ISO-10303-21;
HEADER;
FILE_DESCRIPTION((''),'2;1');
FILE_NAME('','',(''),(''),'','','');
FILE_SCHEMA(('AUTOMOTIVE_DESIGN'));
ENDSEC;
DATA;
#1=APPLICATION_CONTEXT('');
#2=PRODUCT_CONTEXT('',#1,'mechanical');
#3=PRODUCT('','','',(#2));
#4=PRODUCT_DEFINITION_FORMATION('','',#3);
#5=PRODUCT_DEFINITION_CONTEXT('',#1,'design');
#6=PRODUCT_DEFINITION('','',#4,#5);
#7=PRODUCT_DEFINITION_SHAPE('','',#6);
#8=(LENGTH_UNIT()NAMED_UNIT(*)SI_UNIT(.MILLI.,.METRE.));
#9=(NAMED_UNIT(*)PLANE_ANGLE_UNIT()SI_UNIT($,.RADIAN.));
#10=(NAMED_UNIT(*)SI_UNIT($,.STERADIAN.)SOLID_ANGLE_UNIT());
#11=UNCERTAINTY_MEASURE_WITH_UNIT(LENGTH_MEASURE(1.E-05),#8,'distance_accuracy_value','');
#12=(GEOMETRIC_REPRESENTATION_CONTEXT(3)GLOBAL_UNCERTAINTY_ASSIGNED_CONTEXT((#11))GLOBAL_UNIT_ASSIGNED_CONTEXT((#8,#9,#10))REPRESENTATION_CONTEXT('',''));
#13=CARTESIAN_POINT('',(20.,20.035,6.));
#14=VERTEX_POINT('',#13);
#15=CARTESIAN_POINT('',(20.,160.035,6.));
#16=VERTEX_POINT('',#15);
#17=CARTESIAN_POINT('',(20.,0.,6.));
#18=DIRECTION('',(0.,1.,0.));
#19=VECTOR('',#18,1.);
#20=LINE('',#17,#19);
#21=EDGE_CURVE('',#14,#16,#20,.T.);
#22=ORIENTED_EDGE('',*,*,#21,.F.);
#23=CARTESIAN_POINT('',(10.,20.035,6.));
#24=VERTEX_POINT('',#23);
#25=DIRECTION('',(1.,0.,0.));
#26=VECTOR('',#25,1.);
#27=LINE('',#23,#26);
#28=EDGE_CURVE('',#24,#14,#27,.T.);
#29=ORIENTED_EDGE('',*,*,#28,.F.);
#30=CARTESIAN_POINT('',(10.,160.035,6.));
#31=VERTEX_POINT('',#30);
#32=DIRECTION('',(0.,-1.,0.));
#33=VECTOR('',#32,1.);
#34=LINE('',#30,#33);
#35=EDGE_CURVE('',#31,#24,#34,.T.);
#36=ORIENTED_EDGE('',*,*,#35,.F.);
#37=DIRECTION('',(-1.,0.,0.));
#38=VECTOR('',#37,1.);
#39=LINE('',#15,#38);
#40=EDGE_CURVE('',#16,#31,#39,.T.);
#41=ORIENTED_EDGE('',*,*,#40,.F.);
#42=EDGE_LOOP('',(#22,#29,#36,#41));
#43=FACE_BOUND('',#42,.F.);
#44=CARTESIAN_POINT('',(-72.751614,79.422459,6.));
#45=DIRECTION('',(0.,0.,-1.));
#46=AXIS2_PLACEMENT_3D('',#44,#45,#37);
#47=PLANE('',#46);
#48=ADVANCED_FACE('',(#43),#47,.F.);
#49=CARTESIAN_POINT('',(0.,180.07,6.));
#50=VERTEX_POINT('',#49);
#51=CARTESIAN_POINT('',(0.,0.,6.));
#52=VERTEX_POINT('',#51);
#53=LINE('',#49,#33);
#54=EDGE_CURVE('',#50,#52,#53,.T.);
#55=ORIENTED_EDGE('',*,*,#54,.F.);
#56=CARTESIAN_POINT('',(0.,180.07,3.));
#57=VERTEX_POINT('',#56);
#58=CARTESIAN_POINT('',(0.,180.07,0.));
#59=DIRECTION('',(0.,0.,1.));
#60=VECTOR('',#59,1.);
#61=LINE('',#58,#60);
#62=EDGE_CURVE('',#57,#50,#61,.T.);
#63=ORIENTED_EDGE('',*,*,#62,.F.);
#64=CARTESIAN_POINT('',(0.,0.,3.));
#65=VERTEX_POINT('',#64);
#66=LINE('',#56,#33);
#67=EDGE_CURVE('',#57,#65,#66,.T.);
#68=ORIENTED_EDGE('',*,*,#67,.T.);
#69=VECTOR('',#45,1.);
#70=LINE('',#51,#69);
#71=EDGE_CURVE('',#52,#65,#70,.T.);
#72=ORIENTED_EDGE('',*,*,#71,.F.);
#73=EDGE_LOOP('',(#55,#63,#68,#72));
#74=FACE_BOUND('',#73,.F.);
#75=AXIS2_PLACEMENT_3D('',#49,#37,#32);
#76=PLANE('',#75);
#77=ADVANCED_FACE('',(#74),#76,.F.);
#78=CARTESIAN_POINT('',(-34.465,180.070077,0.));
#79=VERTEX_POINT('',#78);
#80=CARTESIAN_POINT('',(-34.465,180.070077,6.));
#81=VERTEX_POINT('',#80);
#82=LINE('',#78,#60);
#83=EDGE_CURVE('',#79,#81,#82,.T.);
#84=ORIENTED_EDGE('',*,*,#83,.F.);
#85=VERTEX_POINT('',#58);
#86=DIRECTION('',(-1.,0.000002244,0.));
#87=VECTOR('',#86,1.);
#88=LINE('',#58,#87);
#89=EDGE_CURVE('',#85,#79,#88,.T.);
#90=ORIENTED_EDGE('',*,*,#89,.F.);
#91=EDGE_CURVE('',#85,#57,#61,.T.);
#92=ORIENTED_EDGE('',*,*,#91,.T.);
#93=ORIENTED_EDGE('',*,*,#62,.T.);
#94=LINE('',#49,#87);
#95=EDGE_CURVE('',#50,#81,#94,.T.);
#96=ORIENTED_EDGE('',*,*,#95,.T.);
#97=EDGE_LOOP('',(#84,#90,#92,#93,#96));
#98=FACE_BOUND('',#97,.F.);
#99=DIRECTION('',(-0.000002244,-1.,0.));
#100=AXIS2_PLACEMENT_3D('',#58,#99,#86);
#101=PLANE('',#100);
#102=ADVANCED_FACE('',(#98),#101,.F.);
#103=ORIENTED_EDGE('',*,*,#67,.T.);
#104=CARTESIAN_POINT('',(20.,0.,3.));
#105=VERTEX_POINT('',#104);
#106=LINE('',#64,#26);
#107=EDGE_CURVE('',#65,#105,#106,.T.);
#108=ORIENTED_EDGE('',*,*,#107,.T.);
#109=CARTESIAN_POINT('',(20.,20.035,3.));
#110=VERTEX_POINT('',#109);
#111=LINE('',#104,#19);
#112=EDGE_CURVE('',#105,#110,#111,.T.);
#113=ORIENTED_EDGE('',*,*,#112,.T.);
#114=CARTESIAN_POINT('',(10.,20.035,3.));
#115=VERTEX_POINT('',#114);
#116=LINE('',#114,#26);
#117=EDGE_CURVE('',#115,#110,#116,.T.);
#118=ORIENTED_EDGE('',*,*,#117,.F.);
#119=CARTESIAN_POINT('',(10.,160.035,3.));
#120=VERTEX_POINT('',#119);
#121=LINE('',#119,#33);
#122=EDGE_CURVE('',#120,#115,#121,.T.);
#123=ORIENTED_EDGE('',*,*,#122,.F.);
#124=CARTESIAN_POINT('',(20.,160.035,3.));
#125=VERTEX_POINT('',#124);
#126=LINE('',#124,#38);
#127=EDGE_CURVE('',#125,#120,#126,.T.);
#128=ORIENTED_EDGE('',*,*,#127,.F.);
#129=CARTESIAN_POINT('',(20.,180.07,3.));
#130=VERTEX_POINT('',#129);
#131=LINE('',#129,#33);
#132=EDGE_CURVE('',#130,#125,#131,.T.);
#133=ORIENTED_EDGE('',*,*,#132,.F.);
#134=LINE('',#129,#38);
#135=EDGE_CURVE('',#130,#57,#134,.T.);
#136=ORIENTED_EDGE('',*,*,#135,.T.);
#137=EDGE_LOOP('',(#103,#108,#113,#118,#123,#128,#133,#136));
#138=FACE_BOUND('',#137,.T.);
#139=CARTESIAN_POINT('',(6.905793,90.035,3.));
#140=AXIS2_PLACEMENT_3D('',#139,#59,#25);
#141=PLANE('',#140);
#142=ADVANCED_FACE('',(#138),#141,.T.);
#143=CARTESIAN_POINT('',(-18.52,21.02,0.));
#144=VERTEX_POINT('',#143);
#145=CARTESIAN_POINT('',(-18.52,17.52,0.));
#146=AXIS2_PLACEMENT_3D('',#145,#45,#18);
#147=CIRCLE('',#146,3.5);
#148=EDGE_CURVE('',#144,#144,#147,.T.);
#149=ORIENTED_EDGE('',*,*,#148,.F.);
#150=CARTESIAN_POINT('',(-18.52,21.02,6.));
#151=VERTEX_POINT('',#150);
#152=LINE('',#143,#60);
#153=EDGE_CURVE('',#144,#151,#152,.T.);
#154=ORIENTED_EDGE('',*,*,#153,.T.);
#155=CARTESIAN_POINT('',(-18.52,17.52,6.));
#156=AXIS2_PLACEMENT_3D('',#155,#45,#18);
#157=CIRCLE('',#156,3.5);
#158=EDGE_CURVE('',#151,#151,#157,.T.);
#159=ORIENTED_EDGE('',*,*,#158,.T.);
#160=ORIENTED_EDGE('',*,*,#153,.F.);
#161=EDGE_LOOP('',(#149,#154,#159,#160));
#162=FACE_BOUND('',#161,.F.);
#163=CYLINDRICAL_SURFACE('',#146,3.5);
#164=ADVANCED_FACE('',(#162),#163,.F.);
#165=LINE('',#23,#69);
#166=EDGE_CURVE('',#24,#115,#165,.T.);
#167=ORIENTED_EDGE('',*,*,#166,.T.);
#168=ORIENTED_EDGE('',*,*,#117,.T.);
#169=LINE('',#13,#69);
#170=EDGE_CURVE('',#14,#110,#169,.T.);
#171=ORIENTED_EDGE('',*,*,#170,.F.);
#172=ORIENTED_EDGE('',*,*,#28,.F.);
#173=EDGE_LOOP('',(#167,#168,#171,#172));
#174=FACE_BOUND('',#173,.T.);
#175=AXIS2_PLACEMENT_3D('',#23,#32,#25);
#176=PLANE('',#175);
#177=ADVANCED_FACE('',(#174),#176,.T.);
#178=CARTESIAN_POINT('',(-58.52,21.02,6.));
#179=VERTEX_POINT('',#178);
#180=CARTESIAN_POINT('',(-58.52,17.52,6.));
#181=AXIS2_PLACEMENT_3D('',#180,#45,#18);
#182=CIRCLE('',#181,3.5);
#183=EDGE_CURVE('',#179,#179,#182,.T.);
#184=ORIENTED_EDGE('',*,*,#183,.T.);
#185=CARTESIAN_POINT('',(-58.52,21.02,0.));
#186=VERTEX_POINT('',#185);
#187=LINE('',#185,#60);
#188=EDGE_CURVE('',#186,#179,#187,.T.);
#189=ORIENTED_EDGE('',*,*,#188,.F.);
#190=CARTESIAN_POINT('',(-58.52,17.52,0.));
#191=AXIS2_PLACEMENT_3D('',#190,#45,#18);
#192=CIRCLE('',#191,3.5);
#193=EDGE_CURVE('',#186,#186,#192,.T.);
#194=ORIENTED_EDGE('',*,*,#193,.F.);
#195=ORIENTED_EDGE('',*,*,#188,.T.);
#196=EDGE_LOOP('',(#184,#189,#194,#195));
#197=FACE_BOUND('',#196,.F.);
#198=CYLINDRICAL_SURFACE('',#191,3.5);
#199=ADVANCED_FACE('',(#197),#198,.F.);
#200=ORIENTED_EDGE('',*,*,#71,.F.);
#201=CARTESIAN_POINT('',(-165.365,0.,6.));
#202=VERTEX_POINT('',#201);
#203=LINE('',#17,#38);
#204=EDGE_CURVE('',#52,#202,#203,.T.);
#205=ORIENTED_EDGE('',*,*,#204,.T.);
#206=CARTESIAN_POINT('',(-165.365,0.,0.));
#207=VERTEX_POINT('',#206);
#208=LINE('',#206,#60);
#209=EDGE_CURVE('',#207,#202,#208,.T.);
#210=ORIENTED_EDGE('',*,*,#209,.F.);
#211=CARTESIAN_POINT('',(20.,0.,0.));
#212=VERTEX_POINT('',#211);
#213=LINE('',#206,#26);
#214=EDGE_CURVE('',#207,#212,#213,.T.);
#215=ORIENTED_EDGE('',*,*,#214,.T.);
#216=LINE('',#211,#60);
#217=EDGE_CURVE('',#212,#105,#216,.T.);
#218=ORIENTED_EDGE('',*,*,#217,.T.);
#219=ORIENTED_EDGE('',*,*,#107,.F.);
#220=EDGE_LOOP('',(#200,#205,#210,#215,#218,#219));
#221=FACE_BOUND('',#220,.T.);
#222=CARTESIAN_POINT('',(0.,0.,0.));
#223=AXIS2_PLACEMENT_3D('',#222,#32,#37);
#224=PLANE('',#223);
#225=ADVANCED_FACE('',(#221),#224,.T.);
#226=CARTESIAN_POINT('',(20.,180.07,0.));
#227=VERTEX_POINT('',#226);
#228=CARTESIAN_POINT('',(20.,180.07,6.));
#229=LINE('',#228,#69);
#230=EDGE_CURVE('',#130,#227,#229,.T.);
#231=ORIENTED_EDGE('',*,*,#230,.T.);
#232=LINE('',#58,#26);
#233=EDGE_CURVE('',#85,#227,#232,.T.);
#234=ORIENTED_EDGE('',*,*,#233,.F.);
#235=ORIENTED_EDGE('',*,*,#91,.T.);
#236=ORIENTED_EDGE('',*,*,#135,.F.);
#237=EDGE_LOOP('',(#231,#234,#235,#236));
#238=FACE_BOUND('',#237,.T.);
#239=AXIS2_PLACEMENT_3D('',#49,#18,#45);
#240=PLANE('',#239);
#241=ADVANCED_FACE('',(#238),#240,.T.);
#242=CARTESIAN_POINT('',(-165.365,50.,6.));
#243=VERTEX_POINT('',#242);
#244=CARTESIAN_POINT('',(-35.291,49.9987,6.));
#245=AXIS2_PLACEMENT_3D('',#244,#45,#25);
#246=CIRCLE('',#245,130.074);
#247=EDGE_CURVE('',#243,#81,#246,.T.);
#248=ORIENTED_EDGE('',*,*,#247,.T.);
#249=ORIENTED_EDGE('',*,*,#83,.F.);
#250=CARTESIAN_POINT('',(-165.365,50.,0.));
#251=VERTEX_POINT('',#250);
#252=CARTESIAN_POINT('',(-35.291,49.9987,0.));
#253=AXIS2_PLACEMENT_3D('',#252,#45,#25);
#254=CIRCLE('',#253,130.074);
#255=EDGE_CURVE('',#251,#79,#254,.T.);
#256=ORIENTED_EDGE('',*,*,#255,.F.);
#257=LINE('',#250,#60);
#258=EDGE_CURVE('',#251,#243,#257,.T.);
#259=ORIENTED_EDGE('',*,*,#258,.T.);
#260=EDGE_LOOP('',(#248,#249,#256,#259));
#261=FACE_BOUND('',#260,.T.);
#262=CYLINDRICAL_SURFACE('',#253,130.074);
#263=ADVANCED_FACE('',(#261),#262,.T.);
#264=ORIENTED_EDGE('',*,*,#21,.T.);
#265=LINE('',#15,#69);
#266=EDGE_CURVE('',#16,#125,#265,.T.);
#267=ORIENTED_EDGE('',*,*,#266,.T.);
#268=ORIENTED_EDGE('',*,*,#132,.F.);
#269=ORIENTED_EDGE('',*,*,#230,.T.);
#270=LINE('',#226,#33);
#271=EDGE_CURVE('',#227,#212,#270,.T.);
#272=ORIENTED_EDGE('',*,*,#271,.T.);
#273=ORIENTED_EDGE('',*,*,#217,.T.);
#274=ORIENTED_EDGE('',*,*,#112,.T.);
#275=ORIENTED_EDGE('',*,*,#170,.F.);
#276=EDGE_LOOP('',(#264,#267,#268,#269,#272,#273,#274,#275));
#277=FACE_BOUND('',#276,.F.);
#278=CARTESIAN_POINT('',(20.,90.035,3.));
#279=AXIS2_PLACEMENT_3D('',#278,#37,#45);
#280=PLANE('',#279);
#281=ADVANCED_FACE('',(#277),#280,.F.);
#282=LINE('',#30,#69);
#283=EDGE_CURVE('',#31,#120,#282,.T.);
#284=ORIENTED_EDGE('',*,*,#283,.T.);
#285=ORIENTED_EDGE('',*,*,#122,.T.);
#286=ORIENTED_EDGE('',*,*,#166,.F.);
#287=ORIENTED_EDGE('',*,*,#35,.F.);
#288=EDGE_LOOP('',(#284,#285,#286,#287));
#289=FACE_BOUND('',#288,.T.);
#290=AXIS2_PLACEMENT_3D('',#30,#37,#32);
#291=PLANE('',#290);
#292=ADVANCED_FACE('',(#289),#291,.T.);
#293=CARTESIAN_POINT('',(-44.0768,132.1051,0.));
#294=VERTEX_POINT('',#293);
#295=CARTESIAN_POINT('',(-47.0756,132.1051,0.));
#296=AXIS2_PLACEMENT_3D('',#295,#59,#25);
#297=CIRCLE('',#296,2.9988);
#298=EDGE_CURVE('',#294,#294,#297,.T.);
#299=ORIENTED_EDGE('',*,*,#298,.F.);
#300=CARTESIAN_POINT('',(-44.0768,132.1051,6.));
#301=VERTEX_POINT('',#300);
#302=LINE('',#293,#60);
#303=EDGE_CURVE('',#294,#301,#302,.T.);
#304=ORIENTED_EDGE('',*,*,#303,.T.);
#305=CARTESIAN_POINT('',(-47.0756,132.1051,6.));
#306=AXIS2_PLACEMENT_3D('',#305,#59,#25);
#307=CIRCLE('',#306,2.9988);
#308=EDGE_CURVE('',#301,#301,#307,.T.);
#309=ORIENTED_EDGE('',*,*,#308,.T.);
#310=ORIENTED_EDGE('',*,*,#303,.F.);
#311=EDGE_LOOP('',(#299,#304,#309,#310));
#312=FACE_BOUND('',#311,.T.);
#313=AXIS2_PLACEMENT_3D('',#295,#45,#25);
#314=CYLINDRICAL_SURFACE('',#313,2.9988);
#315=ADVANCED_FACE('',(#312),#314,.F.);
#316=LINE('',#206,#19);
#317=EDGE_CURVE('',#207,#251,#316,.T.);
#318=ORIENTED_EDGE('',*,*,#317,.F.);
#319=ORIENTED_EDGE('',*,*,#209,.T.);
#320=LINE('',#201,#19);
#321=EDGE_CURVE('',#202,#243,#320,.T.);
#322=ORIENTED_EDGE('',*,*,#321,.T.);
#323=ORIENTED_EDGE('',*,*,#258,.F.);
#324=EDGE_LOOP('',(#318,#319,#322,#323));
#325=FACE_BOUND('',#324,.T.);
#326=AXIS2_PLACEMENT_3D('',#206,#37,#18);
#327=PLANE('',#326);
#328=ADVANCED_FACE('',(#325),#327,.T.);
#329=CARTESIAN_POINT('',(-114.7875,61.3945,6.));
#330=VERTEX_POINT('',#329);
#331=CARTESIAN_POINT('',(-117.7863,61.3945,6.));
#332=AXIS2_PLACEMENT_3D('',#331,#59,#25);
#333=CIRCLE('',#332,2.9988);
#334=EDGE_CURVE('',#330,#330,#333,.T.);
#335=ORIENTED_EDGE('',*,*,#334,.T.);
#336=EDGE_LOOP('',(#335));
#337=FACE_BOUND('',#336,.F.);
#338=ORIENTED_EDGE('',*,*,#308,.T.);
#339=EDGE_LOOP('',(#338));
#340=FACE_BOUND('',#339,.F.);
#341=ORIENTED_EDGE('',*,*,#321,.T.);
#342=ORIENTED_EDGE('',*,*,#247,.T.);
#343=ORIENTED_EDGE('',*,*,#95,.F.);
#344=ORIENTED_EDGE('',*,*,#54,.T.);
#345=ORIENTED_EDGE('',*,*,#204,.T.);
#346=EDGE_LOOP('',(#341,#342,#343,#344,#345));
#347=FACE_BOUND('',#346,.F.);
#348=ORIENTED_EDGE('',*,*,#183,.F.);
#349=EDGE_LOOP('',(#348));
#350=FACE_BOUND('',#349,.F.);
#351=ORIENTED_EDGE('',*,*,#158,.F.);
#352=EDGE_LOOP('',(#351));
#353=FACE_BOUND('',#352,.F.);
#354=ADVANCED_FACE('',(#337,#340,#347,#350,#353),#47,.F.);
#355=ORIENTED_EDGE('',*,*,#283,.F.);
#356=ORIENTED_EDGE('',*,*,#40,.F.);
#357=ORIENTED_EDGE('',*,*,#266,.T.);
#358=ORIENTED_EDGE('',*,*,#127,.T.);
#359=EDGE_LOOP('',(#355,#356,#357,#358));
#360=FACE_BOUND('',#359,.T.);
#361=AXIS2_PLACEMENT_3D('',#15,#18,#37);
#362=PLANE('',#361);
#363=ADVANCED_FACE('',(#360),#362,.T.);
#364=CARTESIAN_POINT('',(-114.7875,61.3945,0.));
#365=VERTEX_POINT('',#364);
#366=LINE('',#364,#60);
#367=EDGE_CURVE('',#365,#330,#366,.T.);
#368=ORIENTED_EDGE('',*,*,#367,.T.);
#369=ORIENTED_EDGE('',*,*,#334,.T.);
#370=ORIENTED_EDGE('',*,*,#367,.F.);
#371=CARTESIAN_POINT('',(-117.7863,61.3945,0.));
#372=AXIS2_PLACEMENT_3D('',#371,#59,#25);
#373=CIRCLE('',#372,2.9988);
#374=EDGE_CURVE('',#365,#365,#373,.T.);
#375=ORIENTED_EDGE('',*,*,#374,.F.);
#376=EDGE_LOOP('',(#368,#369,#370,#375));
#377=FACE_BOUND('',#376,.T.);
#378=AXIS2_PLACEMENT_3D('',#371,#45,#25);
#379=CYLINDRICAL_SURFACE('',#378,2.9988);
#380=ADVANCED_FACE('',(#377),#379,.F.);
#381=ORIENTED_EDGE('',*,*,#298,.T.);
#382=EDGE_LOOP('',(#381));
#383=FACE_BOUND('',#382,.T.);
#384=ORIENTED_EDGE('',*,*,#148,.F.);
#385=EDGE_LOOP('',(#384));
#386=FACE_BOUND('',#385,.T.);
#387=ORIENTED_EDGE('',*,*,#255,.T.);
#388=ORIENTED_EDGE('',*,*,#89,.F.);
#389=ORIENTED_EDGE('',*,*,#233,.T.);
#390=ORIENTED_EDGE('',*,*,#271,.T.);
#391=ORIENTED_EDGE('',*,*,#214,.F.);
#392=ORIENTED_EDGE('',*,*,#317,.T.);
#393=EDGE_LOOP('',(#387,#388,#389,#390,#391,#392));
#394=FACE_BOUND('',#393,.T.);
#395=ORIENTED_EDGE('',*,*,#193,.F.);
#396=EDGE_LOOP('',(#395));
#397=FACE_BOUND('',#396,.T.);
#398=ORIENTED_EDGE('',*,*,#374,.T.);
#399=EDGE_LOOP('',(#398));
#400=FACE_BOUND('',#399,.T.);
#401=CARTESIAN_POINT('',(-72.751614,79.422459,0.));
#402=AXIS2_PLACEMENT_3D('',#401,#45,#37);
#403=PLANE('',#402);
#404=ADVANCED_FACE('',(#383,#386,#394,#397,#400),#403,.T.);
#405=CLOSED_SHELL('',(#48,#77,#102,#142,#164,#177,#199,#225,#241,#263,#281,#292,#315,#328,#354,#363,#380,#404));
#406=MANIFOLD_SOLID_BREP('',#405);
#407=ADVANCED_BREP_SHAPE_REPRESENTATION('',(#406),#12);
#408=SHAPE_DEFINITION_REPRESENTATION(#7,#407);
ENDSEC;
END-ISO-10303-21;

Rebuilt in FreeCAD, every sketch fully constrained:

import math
import FreeCAD as App
import Part
import Sketcher
Q = App.Units.Quantity

doc = App.newDocument("Part")
body = doc.addObject("PartDesign::Body", "Body")

# Sketch on XY plane
sketch1 = body.newObject("Sketcher::SketchObject", "Sketch")
sketch1.AttachmentSupport = (doc.getObject("XY_Plane"), [""])
sketch1.MapMode = "FlatFace"
sketch1.addGeometry([
    Part.LineSegment(App.Vector(-165.365, 0, 0), App.Vector(0, 0, 0)),  # 0
    Part.LineSegment(App.Vector(0, 0, 0), App.Vector(0, 180.07, 0)),  # 1
    Part.LineSegment(App.Vector(0, 180.07, 0), App.Vector(-34.465, 180.07, 0)),  # 2
    Part.ArcOfCircle(Part.Circle(App.Vector(-35.291, 49.9987, 0), App.Vector(0, 0, 1), 130.074), math.radians(89.636156), math.radians(179.999427)),  # 3
    Part.LineSegment(App.Vector(-165.365, 50, 0), App.Vector(-165.365, 0, 0)),  # 4
    Part.Circle(App.Vector(-117.7863, 61.3945, 0), App.Vector(0, 0, 1), 2.9988),  # 5
    Part.Circle(App.Vector(-47.0756, 132.1051, 0), App.Vector(0, 0, 1), 2.9988),  # 6
], False)
sketch1.addConstraint([
    Sketcher.Constraint("Coincident", 0, 2, 1, 1),
    Sketcher.Constraint("Coincident", 1, 2, 2, 1),
    Sketcher.Constraint("Coincident", 2, 2, 3, 1),
    Sketcher.Constraint("Coincident", 3, 2, 4, 1),
    Sketcher.Constraint("Coincident", 4, 2, 0, 1),
    Sketcher.Constraint("Horizontal", 0),
    Sketcher.Constraint("Vertical", 1),
    Sketcher.Constraint("Horizontal", 2),
    Sketcher.Constraint("Vertical", 4),
    Sketcher.Constraint("Coincident", 0, 2, -1, 1),
    Sketcher.Constraint("DistanceX", 0, 1, 0, 2, Q("165.365 mm")),
    Sketcher.Constraint("DistanceY", 4, 2, 4, 1, Q("50 mm")),
    Sketcher.Constraint("Radius", 3, Q("130.074 mm")),
    Sketcher.Constraint("Diameter", 5, Q("5.9976 mm")),
    Sketcher.Constraint("Diameter", 6, Q("5.9976 mm")),
    Sketcher.Constraint("DistanceY", 1, 1, 1, 2, Q("180.07 mm")),
    Sketcher.Constraint("DistanceX", 3, 2, 2, 2, Q("130.9 mm")),
    Sketcher.Constraint("DistanceY", -1, 1, 6, 3, Q("132.105 mm")),
    Sketcher.Constraint("DistanceX", 5, 3, -1, 1, Q("117.7863 mm")),
    Sketcher.Constraint("DistanceY", -1, 1, 5, 3, Q("61.3945 mm")),
    Sketcher.Constraint("DistanceX", 6, 3, -1, 1, Q("47.0756 mm")),
])
pad1 = body.newObject("PartDesign::Pad", "Pad")
pad1.Profile = sketch1
pad1.Length = 6

# Sketch on YZ plane
sketch2 = body.newObject("Sketcher::SketchObject", "Sketch001")
sketch2.AttachmentSupport = (doc.getObject("YZ_Plane"), [""])
sketch2.MapMode = "FlatFace"
sketch2.addGeometry([
    Part.LineSegment(App.Vector(180, 6, 0), App.Vector(0, 6, 0)),
    Part.LineSegment(App.Vector(0, 6, 0), App.Vector(0, 0, 0)),
    Part.LineSegment(App.Vector(0, 0, 0), App.Vector(180, 0, 0)),
    Part.LineSegment(App.Vector(180, 0, 0), App.Vector(180, 6, 0)),
], False)
sketch2.addConstraint([
    Sketcher.Constraint("Coincident", 0, 2, 1, 1),
    Sketcher.Constraint("Coincident", 1, 2, 2, 1),
    Sketcher.Constraint("Coincident", 2, 2, 3, 1),
    Sketcher.Constraint("Coincident", 3, 2, 0, 1),
    Sketcher.Constraint("Horizontal", 0),
    Sketcher.Constraint("Vertical", 1),
    Sketcher.Constraint("Horizontal", 2),
    Sketcher.Constraint("Vertical", 3),
    Sketcher.Constraint("Coincident", 1, 2, -1, 1),
    Sketcher.Constraint("DistanceY", 1, 2, 1, 1, Q("6 mm")),
    Sketcher.Constraint("DistanceX", 0, 2, 0, 1, Q("180.07 mm")),
])
pad2 = body.newObject("PartDesign::Pad", "Pad001")
pad2.Profile = sketch2
pad2.Length = 20

# Sketch on XY plane
sketch3 = body.newObject("Sketcher::SketchObject", "Sketch002")
sketch3.AttachmentSupport = (doc.getObject("XY_Plane"), [""])
sketch3.MapMode = "FlatFace"
sketch3.AttachmentOffset = App.Placement(App.Vector(0, 0, 6), App.Rotation())
sketch3.addGeometry([
    Part.LineSegment(App.Vector(20, 160, 0), App.Vector(20, 180, 0)),  # 0
    Part.LineSegment(App.Vector(20, 180, 0), App.Vector(0, 180, 0)),  # 1
    Part.LineSegment(App.Vector(0, 180, 0), App.Vector(0, 0, 0)),  # 2
    Part.LineSegment(App.Vector(0, 0, 0), App.Vector(20, 0, 0)),  # 3
    Part.LineSegment(App.Vector(20, 0, 0), App.Vector(20, 20, 0)),  # 4
    Part.LineSegment(App.Vector(20, 20, 0), App.Vector(10, 20, 0)),  # 5
    Part.LineSegment(App.Vector(10, 20, 0), App.Vector(10, 160, 0)),  # 6
    Part.LineSegment(App.Vector(10, 160, 0), App.Vector(20, 160, 0)),  # 7
], False)
sketch3.addConstraint([
    Sketcher.Constraint("Coincident", 0, 2, 1, 1),
    Sketcher.Constraint("Coincident", 1, 2, 2, 1),
    Sketcher.Constraint("Coincident", 2, 2, 3, 1),
    Sketcher.Constraint("Coincident", 3, 2, 4, 1),
    Sketcher.Constraint("Coincident", 4, 2, 5, 1),
    Sketcher.Constraint("Coincident", 5, 2, 6, 1),
    Sketcher.Constraint("Coincident", 6, 2, 7, 1),
    Sketcher.Constraint("Coincident", 7, 2, 0, 1),
    Sketcher.Constraint("Vertical", 0),
    Sketcher.Constraint("Horizontal", 1),
    Sketcher.Constraint("Vertical", 2),
    Sketcher.Constraint("Horizontal", 3),
    Sketcher.Constraint("Vertical", 4),
    Sketcher.Constraint("Horizontal", 5),
    Sketcher.Constraint("Vertical", 6),
    Sketcher.Constraint("Horizontal", 7),
    Sketcher.Constraint("Coincident", 2, 2, -1, 1),
    Sketcher.Constraint("Vertical", 0, 2, 3, 2),
    Sketcher.Constraint("Equal", 0, 4),
    Sketcher.Constraint("DistanceX", 1, 2, 1, 1, Q("20 mm")),
    Sketcher.Constraint("DistanceX", 5, 2, 5, 1, Q("10 mm")),
    Sketcher.Constraint("DistanceY", 6, 1, 6, 2, Q("140 mm")),
    Sketcher.Constraint("DistanceY", 2, 2, 2, 1, Q("180.07 mm")),
])
pocket1 = body.newObject("PartDesign::Pocket", "Pocket")
pocket1.Profile = sketch3
pocket1.Length = 3

# Sketch on XY plane
sketch4 = body.newObject("Sketcher::SketchObject", "Sketch003")
sketch4.AttachmentSupport = (doc.getObject("XY_Plane"), [""])
sketch4.MapMode = "FlatFace"
sketch4.addGeometry([
    Part.Circle(App.Vector(-18.5, 17.5, 0), App.Vector(0, 0, 1), 3.5),
    Part.Circle(App.Vector(-58.5, 17.5, 0), App.Vector(0, 0, 1), 3.5),
], False)
sketch4.addConstraint([
    Sketcher.Constraint("Equal", 0, 1),
    Sketcher.Constraint("Horizontal", 0, 3, 1, 3),
    Sketcher.Constraint("Diameter", 0, Q("7 mm")),
    Sketcher.Constraint("DistanceX", 1, 3, 0, 3, Q("40 mm")),
    Sketcher.Constraint("DistanceX", 0, 3, -1, 1, Q("18.52 mm")),
    Sketcher.Constraint("DistanceY", -1, 1, 0, 3, Q("17.52 mm")),
])
pocket2 = body.newObject("PartDesign::Pocket", "Pocket001")
pocket2.Profile = sketch4
pocket2.Type = "ThroughAll"
pocket2.Reversed = True

doc.recompute()
